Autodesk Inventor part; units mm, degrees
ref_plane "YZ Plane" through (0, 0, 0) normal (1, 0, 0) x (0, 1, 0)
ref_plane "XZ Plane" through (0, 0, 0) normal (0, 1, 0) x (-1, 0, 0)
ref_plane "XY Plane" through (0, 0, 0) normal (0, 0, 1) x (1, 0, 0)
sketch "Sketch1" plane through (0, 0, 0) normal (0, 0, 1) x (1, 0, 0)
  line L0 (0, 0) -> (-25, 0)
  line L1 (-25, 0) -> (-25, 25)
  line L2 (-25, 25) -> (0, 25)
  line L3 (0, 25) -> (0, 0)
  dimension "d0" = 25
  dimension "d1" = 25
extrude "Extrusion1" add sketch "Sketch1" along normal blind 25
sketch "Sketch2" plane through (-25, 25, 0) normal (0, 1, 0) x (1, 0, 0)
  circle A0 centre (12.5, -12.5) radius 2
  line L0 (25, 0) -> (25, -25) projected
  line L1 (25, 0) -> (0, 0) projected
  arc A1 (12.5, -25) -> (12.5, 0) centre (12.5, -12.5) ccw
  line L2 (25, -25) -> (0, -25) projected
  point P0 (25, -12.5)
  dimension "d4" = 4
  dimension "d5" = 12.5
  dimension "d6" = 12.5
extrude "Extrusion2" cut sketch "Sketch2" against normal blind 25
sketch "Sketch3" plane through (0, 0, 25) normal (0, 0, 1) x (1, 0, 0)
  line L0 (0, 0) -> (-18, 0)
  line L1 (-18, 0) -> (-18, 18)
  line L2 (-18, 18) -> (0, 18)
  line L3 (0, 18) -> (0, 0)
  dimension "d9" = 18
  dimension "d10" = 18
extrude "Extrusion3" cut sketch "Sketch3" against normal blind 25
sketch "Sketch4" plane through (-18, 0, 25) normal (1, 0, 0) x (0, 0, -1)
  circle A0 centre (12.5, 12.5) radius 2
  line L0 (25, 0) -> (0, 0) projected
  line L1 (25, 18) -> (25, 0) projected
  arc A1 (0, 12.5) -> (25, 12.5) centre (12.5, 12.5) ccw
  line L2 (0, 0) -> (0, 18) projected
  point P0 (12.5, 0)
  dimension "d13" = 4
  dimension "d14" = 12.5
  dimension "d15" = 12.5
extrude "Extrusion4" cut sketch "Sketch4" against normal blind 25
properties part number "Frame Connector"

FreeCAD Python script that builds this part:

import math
import FreeCAD as App
import Part
import Sketcher

V = App.Vector
Q = App.Units.Quantity


def add_polygon(sketch, points):
    """Adds a closed chain of lines whose ends are joined by coincident constraints."""
    first, n = sketch.GeometryCount, len(points)
    for a, b in zip(points, points[1:] + points[:1]):
        sketch.addGeometry(Part.LineSegment(App.Vector(*a, 0), App.Vector(*b, 0)), False)
    for i in range(n):
        sketch.addConstraint(Sketcher.Constraint("Coincident", first + i, 2, first + (i + 1) % n, 1))

doc = App.newDocument("Part")
body = doc.addObject("PartDesign::Body", "Body")

sketch1 = doc.addObject("Sketcher::SketchObject", "Sketch")
body.addObject(sketch1)
sketch1.AttachmentSupport = (doc.XY_Plane, [""])
sketch1.MapMode = "FlatFace"
add_polygon(sketch1, [(-25, 0), (0, 0), (0, 25), (-25, 25)])
sketch1.addConstraint(Sketcher.Constraint("Horizontal", 0))
sketch1.addConstraint(Sketcher.Constraint("Vertical", 1))
sketch1.addConstraint(Sketcher.Constraint("Horizontal", 2))
sketch1.addConstraint(Sketcher.Constraint("Vertical", 3))
sketch1.addConstraint(Sketcher.Constraint("Coincident", 0, 2, -1, 1))
sketch1.addConstraint(Sketcher.Constraint("Equal", 2, 1))
sketch1.addConstraint(Sketcher.Constraint("DistanceX", 0, 1, 0, 2, Q("25 mm")))
pad1 = doc.addObject("PartDesign::Pad", "Pad")
body.addObject(pad1)
pad1.Profile = sketch1
pad1.Length = 25

sketch2 = doc.addObject("Sketcher::SketchObject", "Sketch001")
body.addObject(sketch2)
sketch2.AttachmentSupport = (doc.XZ_Plane, [""])
sketch2.MapMode = "FlatFace"
sketch2.AttachmentOffset = App.Placement(V(0, 0, -25), App.Rotation())
sketch2.addGeometry(Part.Circle(V(-12.5, 12.5, 0), V(0, 0, 1), 2), False)
sketch2.addGeometry(Part.LineSegment(V(0, 25, 0), V(0, 12.5, 0)), False)
sketch2.addGeometry(Part.ArcOfCircle(Part.Circle(V(-12.5, 12.5, 0), V(0, 0, 1), 12.5), math.radians(0), math.radians(90)), False)
sketch2.addGeometry(Part.LineSegment(V(-12.5, 25, 0), V(0, 25, 0)), False)
sketch2.addGeometry(Part.LineSegment(V(0, 12.5, 0), V(0, 0, 0)), False)
sketch2.addGeometry(Part.LineSegment(V(0, 0, 0), V(-12.5, 0, 0)), False)
sketch2.addGeometry(Part.ArcOfCircle(Part.Circle(V(-12.5, 12.5, 0), V(0, 0, 1), 12.5), math.radians(-90), math.radians(0)), False)
sketch2.addConstraint(Sketcher.Constraint("Tangent", 1, 2, 2, 1))
sketch2.addConstraint(Sketcher.Constraint("Tangent", 2, 2, 3, 1))
sketch2.addConstraint(Sketcher.Constraint("Coincident", 3, 2, 1, 1))
sketch2.addConstraint(Sketcher.Constraint("Coincident", 4, 2, 5, 1))
sketch2.addConstraint(Sketcher.Constraint("Tangent", 5, 2, 6, 1))
sketch2.addConstraint(Sketcher.Constraint("Tangent", 6, 2, 4, 1))
sketch2.addConstraint(Sketcher.Constraint("Vertical", 1))
sketch2.addConstraint(Sketcher.Constraint("Horizontal", 3))
sketch2.addConstraint(Sketcher.Constraint("Vertical", 4))
sketch2.addConstraint(Sketcher.Constraint("Horizontal", 5))
sketch2.addConstraint(Sketcher.Constraint("Coincident", 4, 2, -1, 1))
sketch2.addConstraint(Sketcher.Constraint("Coincident", 2, 3, 0, 3))
sketch2.addConstraint(Sketcher.Constraint("Coincident", 6, 3, 0, 3))
sketch2.addConstraint(Sketcher.Constraint("Equal", 2, 6))
sketch2.addConstraint(Sketcher.Constraint("Diameter", 0, Q("4 mm")))
sketch2.addConstraint(Sketcher.Constraint("Radius", 2, Q("12.5 mm")))
pocket1 = doc.addObject("PartDesign::Pocket", "Pocket")
body.addObject(pocket1)
pocket1.Profile = sketch2
pocket1.Length = 25
pocket1.Reversed = True

sketch3 = doc.addObject("Sketcher::SketchObject", "Sketch002")
body.addObject(sketch3)
sketch3.AttachmentSupport = (doc.XY_Plane, [""])
sketch3.MapMode = "FlatFace"
sketch3.AttachmentOffset = App.Placement(V(0, 0, 25), App.Rotation())
add_polygon(sketch3, [(-18, 0), (0, 0), (0, 18), (-18, 18)])
sketch3.addConstraint(Sketcher.Constraint("Horizontal", 0))
sketch3.addConstraint(Sketcher.Constraint("Vertical", 1))
sketch3.addConstraint(Sketcher.Constraint("Horizontal", 2))
sketch3.addConstraint(Sketcher.Constraint("Vertical", 3))
sketch3.addConstraint(Sketcher.Constraint("Coincident", 0, 2, -1, 1))
sketch3.addConstraint(Sketcher.Constraint("Equal", 2, 1))
sketch3.addConstraint(Sketcher.Constraint("DistanceX", 0, 1, 0, 2, Q("18 mm")))
pocket2 = doc.addObject("PartDesign::Pocket", "Pocket001")
body.addObject(pocket2)
pocket2.Profile = sketch3
pocket2.Length = 25

sketch4 = doc.addObject("Sketcher::SketchObject", "Sketch003")
body.addObject(sketch4)
sketch4.AttachmentSupport = (doc.YZ_Plane, [""])
sketch4.MapMode = "FlatFace"
sketch4.AttachmentOffset = App.Placement(V(0, 0, -18), App.Rotation())
sketch4.addGeometry(Part.Circle(V(12.5, 12.5, 0), V(0, 0, 1), 2), False)
sketch4.addGeometry(Part.LineSegment(V(0, 25, 0), V(0, 12.5, 0)), False)
sketch4.addGeometry(Part.ArcOfCircle(Part.Circle(V(12.5, 12.5, 0), V(0, 0, 1), 12.5), math.radians(90), math.radians(180)), False)
sketch4.addGeometry(Part.LineSegment(V(12.5, 25, 0), V(0, 25, 0)), False)
sketch4.addGeometry(Part.LineSegment(V(0, 12.5, 0), V(0, 0, 0)), False)
sketch4.addGeometry(Part.LineSegment(V(0, 0, 0), V(12.5, 0, 0)), False)
sketch4.addGeometry(Part.ArcOfCircle(Part.Circle(V(12.5, 12.5, 0), V(0, 0, 1), 12.5), math.radians(180), math.radians(270)), False)
sketch4.addConstraint(Sketcher.Constraint("Tangent", 1, 2, 2, 2))
sketch4.addConstraint(Sketcher.Constraint("Tangent", 2, 1, 3, 1))
sketch4.addConstraint(Sketcher.Constraint("Coincident", 3, 2, 1, 1))
sketch4.addConstraint(Sketcher.Constraint("Coincident", 4, 2, 5, 1))
sketch4.addConstraint(Sketcher.Constraint("Tangent", 5, 2, 6, 2))
sketch4.addConstraint(Sketcher.Constraint("Tangent", 6, 1, 4, 1))
sketch4.addConstraint(Sketcher.Constraint("Vertical", 1))
sketch4.addConstraint(Sketcher.Constraint("Horizontal", 3))
sketch4.addConstraint(Sketcher.Constraint("Vertical", 4))
sketch4.addConstraint(Sketcher.Constraint("Horizontal", 5))
sketch4.addConstraint(Sketcher.Constraint("Coincident", 4, 2, -1, 1))
sketch4.addConstraint(Sketcher.Constraint("Coincident", 2, 3, 0, 3))
sketch4.addConstraint(Sketcher.Constraint("Coincident", 6, 3, 0, 3))
sketch4.addConstraint(Sketcher.Constraint("Equal", 2, 6))
sketch4.addConstraint(Sketcher.Constraint("Diameter", 0, Q("4 mm")))
sketch4.addConstraint(Sketcher.Constraint("Radius", 2, Q("12.5 mm")))
pocket3 = doc.addObject("PartDesign::Pocket", "Pocket002")
body.addObject(pocket3)
pocket3.Profile = sketch4
pocket3.Length = 25

doc.recompute()
